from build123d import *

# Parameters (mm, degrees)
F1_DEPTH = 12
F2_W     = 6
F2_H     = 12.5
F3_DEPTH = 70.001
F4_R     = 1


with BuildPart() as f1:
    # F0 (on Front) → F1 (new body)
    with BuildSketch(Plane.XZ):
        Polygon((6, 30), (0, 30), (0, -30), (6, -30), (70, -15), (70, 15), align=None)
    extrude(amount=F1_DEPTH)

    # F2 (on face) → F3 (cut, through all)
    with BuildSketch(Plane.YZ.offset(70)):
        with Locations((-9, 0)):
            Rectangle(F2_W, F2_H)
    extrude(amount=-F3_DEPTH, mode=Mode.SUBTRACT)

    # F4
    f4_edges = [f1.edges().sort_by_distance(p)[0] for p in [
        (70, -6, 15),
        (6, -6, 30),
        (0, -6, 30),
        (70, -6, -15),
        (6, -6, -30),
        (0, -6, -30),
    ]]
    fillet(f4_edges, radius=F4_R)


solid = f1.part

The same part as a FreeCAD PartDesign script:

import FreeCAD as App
import Part
import Sketcher

V = App.Vector
Q = App.Units.Quantity


def edges_at(feature, points):
    """Names of the edges that pass closest to the given points."""
    edges = feature.Shape.Edges
    near = lambda p: min(range(len(edges)), key=lambda i: edges[i].distToShape(Part.Vertex(*p))[0])
    return sorted({f"Edge{near(p) + 1}" for p in points})

doc = App.newDocument("Part")
body = doc.addObject("PartDesign::Body", "Body")

# Sketch on XZ plane
sketch1 = body.newObject("Sketcher::SketchObject", "Sketch")
sketch1.AttachmentSupport = (doc.getObject("XZ_Plane"), [""])
sketch1.MapMode = "FlatFace"
sketch1.addGeometry([
    Part.LineSegment(V(6, 30, 0), V(0, 30, 0)),  # 0
    Part.LineSegment(V(0, 30, 0), V(0, -30, 0)),  # 1
    Part.LineSegment(V(0, -30, 0), V(6, -30, 0)),  # 2
    Part.LineSegment(V(6, -30, 0), V(70, -15, 0)),  # 3
    Part.LineSegment(V(70, -15, 0), V(70, 15, 0)),  # 4
    Part.LineSegment(V(70, 15, 0), V(6, 30, 0)),  # 5
], False)
sketch1.addConstraint([
    Sketcher.Constraint("Coincident", 0, 2, 1, 1),
    Sketcher.Constraint("Coincident", 1, 2, 2, 1),
    Sketcher.Constraint("Coincident", 2, 2, 3, 1),
    Sketcher.Constraint("Coincident", 3, 2, 4, 1),
    Sketcher.Constraint("Coincident", 4, 2, 5, 1),
    Sketcher.Constraint("Coincident", 5, 2, 0, 1),
    Sketcher.Constraint("Horizontal", 0),
    Sketcher.Constraint("Vertical", 1),
    Sketcher.Constraint("Horizontal", 2),
    Sketcher.Constraint("Vertical", 4),
    Sketcher.Constraint("Symmetric", 0, 2, 1, 2, -1, 1),
    Sketcher.Constraint("Vertical", 2, 2, 5, 2),
    Sketcher.Constraint("Equal", 3, 5),
    Sketcher.Constraint("DistanceX", 0, 2, 0, 1, Q("6 mm")),
    Sketcher.Constraint("DistanceY", 1, 2, 1, 1, Q("60 mm")),
    Sketcher.Constraint("DistanceY", 4, 1, 4, 2, Q("30 mm")),
    Sketcher.Constraint("DistanceX", -1, 1, 3, 2, Q("70 mm")),
])
pad1 = body.newObject("PartDesign::Pad", "Pad")
pad1.Profile = sketch1
pad1.Length = 12

# Sketch on YZ plane
sketch2 = body.newObject("Sketcher::SketchObject", "Sketch001")
sketch2.AttachmentSupport = (doc.getObject("YZ_Plane"), [""])
sketch2.MapMode = "FlatFace"
sketch2.AttachmentOffset = App.Placement(V(0, 0, 70), App.Rotation())
sketch2.addGeometry([
    Part.LineSegment(V(-12, 6, 0), V(-12, -6, 0)),
    Part.LineSegment(V(-12, -6, 0), V(-6, -6, 0)),
    Part.LineSegment(V(-6, -6, 0), V(-6, 6, 0)),
    Part.LineSegment(V(-6, 6, 0), V(-12, 6, 0)),
], False)
sketch2.addConstraint([
    Sketcher.Constraint("Coincident", 0, 2, 1, 1),
    Sketcher.Constraint("Coincident", 1, 2, 2, 1),
    Sketcher.Constraint("Coincident", 2, 2, 3, 1),
    Sketcher.Constraint("Coincident", 3, 2, 0, 1),
    Sketcher.Constraint("Vertical", 0),
    Sketcher.Constraint("Horizontal", 1),
    Sketcher.Constraint("Vertical", 2),
    Sketcher.Constraint("Horizontal", 3),
    Sketcher.Constraint("DistanceX", 1, 1, 1, 2, Q("6 mm")),
    Sketcher.Constraint("DistanceY", 0, 2, 0, 1, Q("12.5 mm")),
    Sketcher.Constraint("DistanceX", 0, 2, -1, 1, Q("12 mm")),
    Sketcher.Constraint("DistanceY", 0, 2, -1, 1, Q("6.25 mm")),
])
pocket1 = body.newObject("PartDesign::Pocket", "Pocket")
pocket1.Profile = sketch2
pocket1.Type = "ThroughAll"
doc.recompute()

fillet = body.newObject("PartDesign::Fillet", "Fillet")
fillet.Base = (pocket1, edges_at(pocket1, [
    (70, -6, 15),
    (6, -6, 30),
    (0, -6, 30),
    (70, -6, -15),
    (6, -6, -30),
    (0, -6, -30),
]))
fillet.Radius = 1

doc.recompute()
